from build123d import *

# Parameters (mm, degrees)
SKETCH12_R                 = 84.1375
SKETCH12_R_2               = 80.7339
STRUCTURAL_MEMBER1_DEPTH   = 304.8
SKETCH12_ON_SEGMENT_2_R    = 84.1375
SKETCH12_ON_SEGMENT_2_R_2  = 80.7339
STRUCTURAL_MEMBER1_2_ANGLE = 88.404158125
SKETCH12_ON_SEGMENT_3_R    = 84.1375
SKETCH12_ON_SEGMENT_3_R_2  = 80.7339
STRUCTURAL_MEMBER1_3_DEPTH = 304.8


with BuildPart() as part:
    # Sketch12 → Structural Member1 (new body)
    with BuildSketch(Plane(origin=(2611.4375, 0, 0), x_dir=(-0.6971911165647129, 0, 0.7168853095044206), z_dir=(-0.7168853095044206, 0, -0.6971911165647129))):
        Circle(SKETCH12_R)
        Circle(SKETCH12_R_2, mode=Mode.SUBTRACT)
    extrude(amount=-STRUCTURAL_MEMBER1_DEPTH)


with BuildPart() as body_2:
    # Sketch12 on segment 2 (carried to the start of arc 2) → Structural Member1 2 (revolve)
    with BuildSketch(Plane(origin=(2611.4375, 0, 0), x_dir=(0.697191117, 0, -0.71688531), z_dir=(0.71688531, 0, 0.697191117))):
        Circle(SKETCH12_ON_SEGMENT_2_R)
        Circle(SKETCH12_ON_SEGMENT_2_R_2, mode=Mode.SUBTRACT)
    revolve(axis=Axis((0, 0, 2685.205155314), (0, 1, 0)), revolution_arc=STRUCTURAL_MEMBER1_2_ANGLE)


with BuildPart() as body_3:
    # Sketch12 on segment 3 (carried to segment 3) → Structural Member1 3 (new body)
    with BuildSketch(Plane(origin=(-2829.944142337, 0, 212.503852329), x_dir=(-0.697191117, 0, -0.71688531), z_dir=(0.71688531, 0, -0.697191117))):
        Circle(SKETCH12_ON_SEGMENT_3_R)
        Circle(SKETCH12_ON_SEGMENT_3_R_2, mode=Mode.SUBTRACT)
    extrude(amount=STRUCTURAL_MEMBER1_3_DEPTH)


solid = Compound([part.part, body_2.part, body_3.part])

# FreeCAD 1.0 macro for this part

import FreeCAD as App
import Part
import Sketcher
from FreeCAD import Vector
Q = App.Units.Quantity

doc = App.newDocument("Part")
body = doc.addObject("PartDesign::Body", "Body")

# Sketch on an angled plane
sketch1 = body.newObject("Sketcher::SketchObject", "Sketch")
sketch1.Placement = App.Placement(Vector(2611.4375, 0, 0), App.Rotation(Vector(-0.697191117, 0, 0.71688531), Vector(0, 1.000000001, 0), Vector(-0.71688531, 0, -0.697191117), "ZXY"))
sketch1.addGeometry([
    Part.Circle(Vector(0, 0, 0), Vector(0, 0, 1), 84.1375),
    Part.Circle(Vector(0, 0, 0), Vector(0, 0, 1), 80.7339),
], False)
sketch1.addConstraint([
    Sketcher.Constraint("Coincident", 0, 3, -1, 1),
    Sketcher.Constraint("Coincident", 1, 3, -1, 1),
    Sketcher.Constraint("Diameter", 0, Q("6.625 in")),
    Sketcher.Constraint("Diameter", 1, Q("6.357 in")),
])
pad1 = body.newObject("PartDesign::Pad", "Pad")
pad1.Profile = sketch1
pad1.Length = Q("12 in")
pad1.Reversed = True
body2 = doc.addObject("PartDesign::Body", "Body001")

# Sketch on an angled plane
sketch2 = body2.newObject("Sketcher::SketchObject", "Sketch001")
sketch2.Placement = App.Placement(Vector(2611.4375, 0, 0), App.Rotation(Vector(0.697191117, 0, -0.71688531), Vector(0, 1.000000001, 0), Vector(0.71688531, 0, 0.697191117), "ZXY"))
sketch2.addGeometry([
    Part.Circle(Vector(0, 0, 0), Vector(0, 0, 1), 84.1375),
    Part.Circle(Vector(0, 0, 0), Vector(0, 0, 1), 80.7339),
], False)
sketch2.addGeometry(Part.LineSegment(Vector(-3745.655158, 0, 0), Vector(-3745.655158, 10, 0)), True)  # axis
sketch2.addConstraint([
    Sketcher.Constraint("Vertical", 2),
    Sketcher.Constraint("Coincident", 0, 3, -1, 1),
    Sketcher.Constraint("Coincident", 1, 3, -1, 1),
    Sketcher.Constraint("PointOnObject", 2, 1, -1),
    Sketcher.Constraint("Diameter", 0, Q("6.625 in")),
    Sketcher.Constraint("Diameter", 1, Q("6.357 in")),
    Sketcher.Constraint("DistanceY", 2, 1, 2, 2, 10.0),
    Sketcher.Constraint("DistanceX", 2, 1, -1, 1, 3745.655158),
])
revolution = body2.newObject("PartDesign::Revolution", "Revolution")
revolution.Profile = sketch2
revolution.ReferenceAxis = (sketch2, ["Axis0"])
revolution.Angle = 88.404158
body3 = doc.addObject("PartDesign::Body", "Body002")

# Sketch on an angled plane
sketch3 = body3.newObject("Sketcher::SketchObject", "Sketch002")
sketch3.Placement = App.Placement(Vector(-2829.944142, 0, 212.503852), App.Rotation(Vector(-0.697191117, 0, -0.71688531), Vector(0, 1.000000001, 0), Vector(0.71688531, 0, -0.697191117), "ZXY"))
sketch3.addGeometry([
    Part.Circle(Vector(0, 0, 0), Vector(0, 0, 1), 84.1375),
    Part.Circle(Vector(0, 0, 0), Vector(0, 0, 1), 80.7339),
], False)
sketch3.addConstraint([
    Sketcher.Constraint("Coincident", 0, 3, -1, 1),
    Sketcher.Constraint("Coincident", 1, 3, -1, 1),
    Sketcher.Constraint("Diameter", 0, Q("6.625 in")),
    Sketcher.Constraint("Diameter", 1, Q("6.357 in")),
])
pad2 = body3.newObject("PartDesign::Pad", "Pad001")
pad2.Profile = sketch3
pad2.Length = Q("12 in")

doc.recompute()
